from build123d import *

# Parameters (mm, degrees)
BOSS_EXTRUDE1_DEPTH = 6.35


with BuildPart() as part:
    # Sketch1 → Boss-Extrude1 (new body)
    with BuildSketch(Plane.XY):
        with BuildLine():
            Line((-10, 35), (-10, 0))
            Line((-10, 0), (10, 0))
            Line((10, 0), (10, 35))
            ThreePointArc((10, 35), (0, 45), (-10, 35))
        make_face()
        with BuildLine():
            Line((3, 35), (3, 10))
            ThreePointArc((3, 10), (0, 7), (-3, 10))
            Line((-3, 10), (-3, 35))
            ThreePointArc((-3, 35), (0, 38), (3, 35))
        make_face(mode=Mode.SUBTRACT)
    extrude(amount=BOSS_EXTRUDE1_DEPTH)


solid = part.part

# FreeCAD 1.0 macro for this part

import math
import FreeCAD as App
import Part
import Sketcher

V = App.Vector

doc = App.newDocument("Part")
body = doc.addObject("PartDesign::Body", "Body")

# Sketch on XY plane
sketch1 = doc.addObject("Sketcher::SketchObject", "Sketch")
body.addObject(sketch1)
sketch1.AttachmentSupport = (doc.XY_Plane, [""])
sketch1.MapMode = "FlatFace"
sketch1.addGeometry(Part.LineSegment(V(-10, 35, 0), V(-10, 0, 0)), False)
sketch1.addGeometry(Part.LineSegment(V(-10, 0, 0), V(10, 0, 0)), False)
sketch1.addGeometry(Part.LineSegment(V(10, 0, 0), V(10, 35, 0)), False)
sketch1.addGeometry(Part.ArcOfCircle(Part.Circle(V(0, 35, 0), V(0, 0, 1), 10), math.radians(0), math.radians(180)), False)
sketch1.addGeometry(Part.ArcOfCircle(Part.Circle(V(0, 35, 0), V(0, 0, 1), 3), math.radians(0), math.radians(180)), False)
sketch1.addGeometry(Part.LineSegment(V(3, 35, 0), V(3, 10, 0)), False)
sketch1.addGeometry(Part.ArcOfCircle(Part.Circle(V(0, 10, 0), V(0, 0, 1), 3), math.radians(180), math.radians(360)), False)
sketch1.addGeometry(Part.LineSegment(V(-3, 10, 0), V(-3, 35, 0)), False)
sketch1.addConstraint(Sketcher.Constraint("Coincident", 0, 2, 1, 1))
sketch1.addConstraint(Sketcher.Constraint("Coincident", 1, 2, 2, 1))
sketch1.addConstraint(Sketcher.Constraint("Tangent", 2, 2, 3, 1))
sketch1.addConstraint(Sketcher.Constraint("Tangent", 3, 2, 0, 1))
sketch1.addConstraint(Sketcher.Constraint("Tangent", 4, 1, 5, 1))
sketch1.addConstraint(Sketcher.Constraint("Tangent", 5, 2, 6, 2))
sketch1.addConstraint(Sketcher.Constraint("Tangent", 6, 1, 7, 1))
sketch1.addConstraint(Sketcher.Constraint("Tangent", 7, 2, 4, 2))
sketch1.addConstraint(Sketcher.Constraint("Vertical", 0))
sketch1.addConstraint(Sketcher.Constraint("Horizontal", 1))
sketch1.addConstraint(Sketcher.Constraint("Vertical", 2))
sketch1.addConstraint(Sketcher.Constraint("Vertical", 5))
sketch1.addConstraint(Sketcher.Constraint("Vertical", 7))
sketch1.addConstraint(Sketcher.Constraint("Coincident", 4, 3, 3, 3))
sketch1.addConstraint(Sketcher.Constraint("Symmetric", 0, 2, 1, 2, -1, 1))
sketch1.addConstraint(Sketcher.Constraint("Radius", 3, 10.0))
sketch1.addConstraint(Sketcher.Constraint("Radius", 4, 3.0))
sketch1.addConstraint(Sketcher.Constraint("DistanceY", 0, 2, 0, 1, 35.0))
sketch1.addConstraint(Sketcher.Constraint("DistanceY", 5, 2, 5, 1, 25.0))
pad1 = doc.addObject("PartDesign::Pad", "Pad")
body.addObject(pad1)
pad1.Profile = sketch1
pad1.Length = 6.35

doc.recompute()
